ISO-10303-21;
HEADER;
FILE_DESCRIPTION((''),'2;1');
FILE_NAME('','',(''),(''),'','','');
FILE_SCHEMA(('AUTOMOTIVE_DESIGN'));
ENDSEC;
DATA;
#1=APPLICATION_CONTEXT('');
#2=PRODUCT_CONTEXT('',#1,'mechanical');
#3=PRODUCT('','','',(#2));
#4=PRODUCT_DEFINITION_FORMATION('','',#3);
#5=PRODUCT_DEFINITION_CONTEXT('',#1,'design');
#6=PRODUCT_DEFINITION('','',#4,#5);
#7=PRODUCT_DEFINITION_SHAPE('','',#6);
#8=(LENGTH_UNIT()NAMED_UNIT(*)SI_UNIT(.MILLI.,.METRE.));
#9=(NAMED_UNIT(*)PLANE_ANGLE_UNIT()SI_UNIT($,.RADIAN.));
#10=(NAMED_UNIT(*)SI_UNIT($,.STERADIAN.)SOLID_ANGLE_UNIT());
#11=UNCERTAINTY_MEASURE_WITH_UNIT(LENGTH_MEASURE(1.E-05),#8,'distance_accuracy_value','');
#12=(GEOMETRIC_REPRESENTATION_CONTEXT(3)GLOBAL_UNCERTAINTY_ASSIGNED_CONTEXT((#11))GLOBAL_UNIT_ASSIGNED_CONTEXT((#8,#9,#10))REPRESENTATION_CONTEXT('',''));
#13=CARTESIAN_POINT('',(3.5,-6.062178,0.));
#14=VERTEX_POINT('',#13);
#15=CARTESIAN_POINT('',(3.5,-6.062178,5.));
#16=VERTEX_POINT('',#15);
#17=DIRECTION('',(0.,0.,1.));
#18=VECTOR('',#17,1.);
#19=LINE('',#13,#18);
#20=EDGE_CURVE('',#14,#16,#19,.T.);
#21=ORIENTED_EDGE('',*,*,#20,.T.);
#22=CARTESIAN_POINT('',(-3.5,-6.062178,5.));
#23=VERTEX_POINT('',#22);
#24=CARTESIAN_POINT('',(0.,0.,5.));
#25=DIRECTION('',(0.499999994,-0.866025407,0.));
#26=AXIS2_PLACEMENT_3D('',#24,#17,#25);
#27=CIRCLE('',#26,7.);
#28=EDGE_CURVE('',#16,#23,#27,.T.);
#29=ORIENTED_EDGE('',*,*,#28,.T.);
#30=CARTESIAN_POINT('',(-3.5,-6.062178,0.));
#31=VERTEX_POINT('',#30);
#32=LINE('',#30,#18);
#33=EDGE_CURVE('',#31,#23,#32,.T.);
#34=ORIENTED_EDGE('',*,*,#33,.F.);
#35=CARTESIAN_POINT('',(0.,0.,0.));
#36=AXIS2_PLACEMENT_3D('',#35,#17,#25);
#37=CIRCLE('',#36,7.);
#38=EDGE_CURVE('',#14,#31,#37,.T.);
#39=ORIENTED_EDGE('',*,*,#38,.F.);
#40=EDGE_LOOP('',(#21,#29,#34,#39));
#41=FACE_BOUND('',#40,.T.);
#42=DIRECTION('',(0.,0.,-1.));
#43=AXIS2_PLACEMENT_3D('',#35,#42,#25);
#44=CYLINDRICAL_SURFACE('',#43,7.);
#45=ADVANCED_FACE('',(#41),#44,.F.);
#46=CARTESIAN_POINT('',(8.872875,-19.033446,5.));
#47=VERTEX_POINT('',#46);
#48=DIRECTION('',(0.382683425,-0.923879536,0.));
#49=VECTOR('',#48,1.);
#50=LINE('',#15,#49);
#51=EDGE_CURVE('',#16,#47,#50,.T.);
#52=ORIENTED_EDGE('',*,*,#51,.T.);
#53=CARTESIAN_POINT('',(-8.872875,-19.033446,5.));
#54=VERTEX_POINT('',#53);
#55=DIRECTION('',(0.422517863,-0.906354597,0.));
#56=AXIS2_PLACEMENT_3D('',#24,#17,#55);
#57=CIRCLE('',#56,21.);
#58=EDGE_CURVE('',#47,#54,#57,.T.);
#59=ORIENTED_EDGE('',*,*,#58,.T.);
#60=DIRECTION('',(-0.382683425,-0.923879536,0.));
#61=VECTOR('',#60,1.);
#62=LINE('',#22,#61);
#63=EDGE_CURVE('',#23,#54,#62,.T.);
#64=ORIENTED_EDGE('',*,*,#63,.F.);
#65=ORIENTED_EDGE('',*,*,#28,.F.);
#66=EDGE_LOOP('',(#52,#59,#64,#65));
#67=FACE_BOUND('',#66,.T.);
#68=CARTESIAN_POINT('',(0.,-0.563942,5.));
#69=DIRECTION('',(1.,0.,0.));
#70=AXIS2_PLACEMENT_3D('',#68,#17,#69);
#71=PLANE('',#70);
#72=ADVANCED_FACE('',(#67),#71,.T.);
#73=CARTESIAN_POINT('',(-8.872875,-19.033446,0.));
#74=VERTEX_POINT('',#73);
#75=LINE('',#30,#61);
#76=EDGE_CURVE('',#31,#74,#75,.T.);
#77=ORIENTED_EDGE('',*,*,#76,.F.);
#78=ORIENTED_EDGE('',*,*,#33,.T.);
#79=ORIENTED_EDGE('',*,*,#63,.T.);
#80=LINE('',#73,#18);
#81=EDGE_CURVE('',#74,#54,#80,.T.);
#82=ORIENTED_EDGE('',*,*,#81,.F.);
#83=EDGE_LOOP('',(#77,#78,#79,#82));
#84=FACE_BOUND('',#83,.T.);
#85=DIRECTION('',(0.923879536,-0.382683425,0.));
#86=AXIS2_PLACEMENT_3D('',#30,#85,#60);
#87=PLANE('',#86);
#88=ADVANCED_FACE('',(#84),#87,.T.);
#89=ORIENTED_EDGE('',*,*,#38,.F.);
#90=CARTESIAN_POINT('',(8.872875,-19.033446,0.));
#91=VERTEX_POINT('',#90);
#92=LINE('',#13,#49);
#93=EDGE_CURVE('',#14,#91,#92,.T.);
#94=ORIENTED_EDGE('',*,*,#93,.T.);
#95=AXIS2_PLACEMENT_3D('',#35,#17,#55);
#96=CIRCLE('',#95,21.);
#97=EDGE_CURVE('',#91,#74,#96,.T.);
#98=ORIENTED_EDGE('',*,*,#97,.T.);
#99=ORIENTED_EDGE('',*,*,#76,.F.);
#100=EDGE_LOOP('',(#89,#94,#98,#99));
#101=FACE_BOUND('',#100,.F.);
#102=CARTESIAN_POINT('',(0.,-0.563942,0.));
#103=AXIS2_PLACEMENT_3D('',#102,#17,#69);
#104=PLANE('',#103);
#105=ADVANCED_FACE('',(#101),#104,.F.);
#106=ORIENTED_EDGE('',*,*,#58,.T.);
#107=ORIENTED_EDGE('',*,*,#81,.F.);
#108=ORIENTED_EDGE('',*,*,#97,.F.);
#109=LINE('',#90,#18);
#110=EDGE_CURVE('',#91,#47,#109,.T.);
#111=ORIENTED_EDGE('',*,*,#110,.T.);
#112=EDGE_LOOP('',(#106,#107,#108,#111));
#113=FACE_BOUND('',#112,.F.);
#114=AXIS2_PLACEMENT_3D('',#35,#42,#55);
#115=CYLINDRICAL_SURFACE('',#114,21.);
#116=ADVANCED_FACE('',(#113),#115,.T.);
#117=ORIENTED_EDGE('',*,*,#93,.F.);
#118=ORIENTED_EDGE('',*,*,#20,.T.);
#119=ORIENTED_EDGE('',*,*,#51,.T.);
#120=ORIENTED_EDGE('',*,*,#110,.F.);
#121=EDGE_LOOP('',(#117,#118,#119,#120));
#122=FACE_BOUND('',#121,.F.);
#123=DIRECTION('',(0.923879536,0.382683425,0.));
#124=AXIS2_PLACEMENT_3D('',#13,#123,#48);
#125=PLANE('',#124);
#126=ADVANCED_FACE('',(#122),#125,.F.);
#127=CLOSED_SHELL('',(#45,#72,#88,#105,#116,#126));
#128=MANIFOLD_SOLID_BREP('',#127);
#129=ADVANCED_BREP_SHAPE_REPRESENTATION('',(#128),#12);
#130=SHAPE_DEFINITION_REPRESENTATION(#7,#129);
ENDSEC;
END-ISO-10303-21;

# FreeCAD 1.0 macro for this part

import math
import FreeCAD as App
import Part
import Sketcher
from FreeCAD import Vector
Q = App.Units.Quantity

doc = App.newDocument("Part")
body = doc.addObject("PartDesign::Body", "Body")

sketch1 = doc.addObject("Sketcher::SketchObject", "Sketch")
body.addObject(sketch1)
sketch1.AttachmentSupport = (doc.XY_Plane, [""])
sketch1.MapMode = "FlatFace"
sketch1.addGeometry([
    Part.ArcOfCircle(Part.Circle(Vector(0, 0, 0), Vector(0, 0, 1), 21), math.radians(-65), math.radians(245)),
    Part.LineSegment(Vector(-9, -19, 0), Vector(-4, -6, 0)),
    Part.ArcOfCircle(Part.Circle(Vector(0, 0, 0), Vector(0, 0, 1), 7), math.radians(-60), math.radians(240)),
    Part.LineSegment(Vector(4, -6, 0), Vector(9, -19, 0)),
], False)
sketch1.addConstraint([
    Sketcher.Constraint("Coincident", 0, 2, 1, 1),
    Sketcher.Constraint("Coincident", 1, 2, 2, 2),
    Sketcher.Constraint("Coincident", 2, 1, 3, 1),
    Sketcher.Constraint("Coincident", 3, 2, 0, 1),
    Sketcher.Constraint("Coincident", 0, 3, -1, 1),
    Sketcher.Constraint("Coincident", 2, 3, -1, 1),
    Sketcher.Constraint("Horizontal", 1, 2, 2, 1),
    Sketcher.Constraint("Horizontal", 0, 2, 3, 2),
    Sketcher.Constraint("Radius", 0, 21.0),
    Sketcher.Constraint("Radius", 2, 7.0),
    Sketcher.Constraint("Angle", 1, Q("67.5 deg")),
    Sketcher.Constraint("DistanceX", 1, 2, 2, 1, 7.0),
])
pad1 = doc.addObject("PartDesign::Pad", "Pad")
body.addObject(pad1)
pad1.Profile = sketch1
pad1.Length = 5

doc.recompute()
